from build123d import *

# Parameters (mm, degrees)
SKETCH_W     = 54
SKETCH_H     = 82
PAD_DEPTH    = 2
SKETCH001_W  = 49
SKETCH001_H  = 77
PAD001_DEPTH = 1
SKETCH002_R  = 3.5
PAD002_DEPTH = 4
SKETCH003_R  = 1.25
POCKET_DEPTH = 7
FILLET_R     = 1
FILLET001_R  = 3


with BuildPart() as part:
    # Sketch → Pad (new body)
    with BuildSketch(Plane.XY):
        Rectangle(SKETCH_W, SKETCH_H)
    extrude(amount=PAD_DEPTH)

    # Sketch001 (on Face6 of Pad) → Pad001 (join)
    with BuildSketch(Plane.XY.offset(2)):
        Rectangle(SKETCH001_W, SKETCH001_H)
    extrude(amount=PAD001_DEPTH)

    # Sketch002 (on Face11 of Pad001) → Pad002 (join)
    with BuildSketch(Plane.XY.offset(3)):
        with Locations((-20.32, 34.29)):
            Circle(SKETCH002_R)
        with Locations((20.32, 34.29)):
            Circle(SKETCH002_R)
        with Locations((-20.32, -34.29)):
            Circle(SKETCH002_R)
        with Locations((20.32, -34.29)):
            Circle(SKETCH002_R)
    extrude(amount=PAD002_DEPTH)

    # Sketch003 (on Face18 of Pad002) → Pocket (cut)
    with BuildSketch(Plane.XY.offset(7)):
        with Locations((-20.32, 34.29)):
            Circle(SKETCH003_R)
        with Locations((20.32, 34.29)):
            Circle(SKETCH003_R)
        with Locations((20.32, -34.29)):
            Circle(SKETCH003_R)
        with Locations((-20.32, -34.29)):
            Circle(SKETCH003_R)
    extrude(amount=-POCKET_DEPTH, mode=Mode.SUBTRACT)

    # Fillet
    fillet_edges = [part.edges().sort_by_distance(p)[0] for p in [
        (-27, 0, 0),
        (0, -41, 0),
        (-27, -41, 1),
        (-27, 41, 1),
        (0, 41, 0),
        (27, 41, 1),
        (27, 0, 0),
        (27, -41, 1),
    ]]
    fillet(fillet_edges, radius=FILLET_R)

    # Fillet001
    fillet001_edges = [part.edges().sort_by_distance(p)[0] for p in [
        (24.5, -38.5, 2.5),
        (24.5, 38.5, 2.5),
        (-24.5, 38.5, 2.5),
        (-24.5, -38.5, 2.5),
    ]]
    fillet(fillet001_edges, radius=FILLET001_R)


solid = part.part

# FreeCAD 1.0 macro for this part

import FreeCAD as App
import Part
import Sketcher
Q = App.Units.Quantity


def edges_at(feature, points):
    """Names of the edges that pass closest to the given points."""
    edges = feature.Shape.Edges
    near = lambda p: min(range(len(edges)), key=lambda i: edges[i].distToShape(Part.Vertex(*p))[0])
    return sorted({f"Edge{near(p) + 1}" for p in points})


def add_polygon(sketch, points):
    """Adds a closed chain of lines whose ends are joined by coincident constraints."""
    first, n = sketch.GeometryCount, len(points)
    for a, b in zip(points, points[1:] + points[:1]):
        sketch.addGeometry(Part.LineSegment(App.Vector(*a, 0), App.Vector(*b, 0)), False)
    for i in range(n):
        sketch.addConstraint(Sketcher.Constraint("Coincident", first + i, 2, first + (i + 1) % n, 1))

doc = App.newDocument("Part")
params = doc.addObject("Spreadsheet::Sheet", "Params")
for row, (alias, value) in enumerate([
    ("sketch1_width", "54 mm"),
    ("sketch1_height", "82 mm"),
    ("pad1_length", "2 mm"),
    ("sketch2_width", "49 mm"),
    ("sketch2_height", "77 mm"),
    ("pad2_length", "1 mm"),
    ("sketch3_diameter", "7 mm"),
    ("pad3_length", "4 mm"),
    ("sketch4_diameter", "2.5 mm"),
    ("pocket1_length", "7 mm"),
    ("fillet_radius", "1 mm"),
    ("fillet2_radius", "3 mm"),
], start=1):
    params.set(f"A{row}", alias)
    params.set(f"B{row}", "=" + value)
    params.setAlias(f"B{row}", alias)

body = doc.addObject("PartDesign::Body", "Body")

# Sketch on XY plane
sketch1 = body.newObject("Sketcher::SketchObject", "Sketch")
sketch1.AttachmentSupport = (doc.getObject("XY_Plane"), [""])
sketch1.MapMode = "FlatFace"
add_polygon(sketch1, [(-27, 41), (-27, -41), (27, -41), (27, 41)])  # lines 0-3
sketch1.addConstraint(Sketcher.Constraint("Vertical", 0))
sketch1.addConstraint(Sketcher.Constraint("Horizontal", 1))
sketch1.addConstraint(Sketcher.Constraint("Vertical", 2))
sketch1.addConstraint(Sketcher.Constraint("Horizontal", 3))
sketch1.addConstraint(Sketcher.Constraint("Symmetric", 0, 2, 2, 2, -1, 1))
sketch1.addConstraint(Sketcher.Constraint("DistanceX", 1, 1, 1, 2, Q("54 mm")))
sketch1.addConstraint(Sketcher.Constraint("DistanceY", 0, 2, 0, 1, Q("82 mm")))
sketch1.setExpression("Constraints[9]", "Params.sketch1_width")
sketch1.setExpression("Constraints[10]", "Params.sketch1_height")
pad1 = body.newObject("PartDesign::Pad", "Pad")
pad1.Profile = sketch1
pad1.setExpression("Length", "Params.pad1_length")

# Sketch on XY plane
sketch2 = body.newObject("Sketcher::SketchObject", "Sketch001")
sketch2.AttachmentSupport = (doc.getObject("XY_Plane"), [""])
sketch2.MapMode = "FlatFace"
sketch2.AttachmentOffset = App.Placement(App.Vector(0, 0, 2), App.Rotation())
add_polygon(sketch2, [(-24, 38), (-24, -38), (24, -38), (24, 38)])  # lines 0-3
sketch2.addConstraint(Sketcher.Constraint("Vertical", 0))
sketch2.addConstraint(Sketcher.Constraint("Horizontal", 1))
sketch2.addConstraint(Sketcher.Constraint("Vertical", 2))
sketch2.addConstraint(Sketcher.Constraint("Horizontal", 3))
sketch2.addConstraint(Sketcher.Constraint("Symmetric", 0, 2, 2, 2, -1, 1))
sketch2.addConstraint(Sketcher.Constraint("DistanceX", 1, 1, 1, 2, Q("49 mm")))
sketch2.addConstraint(Sketcher.Constraint("DistanceY", 0, 2, 0, 1, Q("77 mm")))
sketch2.setExpression("Constraints[9]", "Params.sketch2_width")
sketch2.setExpression("Constraints[10]", "Params.sketch2_height")
pad2 = body.newObject("PartDesign::Pad", "Pad001")
pad2.Profile = sketch2
pad2.setExpression("Length", "Params.pad2_length")

# Sketch on XY plane
sketch3 = body.newObject("Sketcher::SketchObject", "Sketch002")
sketch3.AttachmentSupport = (doc.getObject("XY_Plane"), [""])
sketch3.MapMode = "FlatFace"
sketch3.AttachmentOffset = App.Placement(App.Vector(0, 0, 3), App.Rotation())
sketch3.addGeometry(Part.Circle(App.Vector(-20.3, 34.3, 0), App.Vector(0, 0, 1), 3.5), False)
sketch3.addGeometry(Part.Circle(App.Vector(20.3, 34.3, 0), App.Vector(0, 0, 1), 3.5), False)
sketch3.addGeometry(Part.Circle(App.Vector(-20.3, -34.3, 0), App.Vector(0, 0, 1), 3.5), False)
sketch3.addGeometry(Part.Circle(App.Vector(20.3, -34.3, 0), App.Vector(0, 0, 1), 3.5), False)
sketch3.addConstraint(Sketcher.Constraint("Equal", 0, 1))
sketch3.addConstraint(Sketcher.Constraint("Equal", 1, 2))
sketch3.addConstraint(Sketcher.Constraint("Equal", 2, 3))
sketch3.addConstraint(Sketcher.Constraint("Symmetric", 1, 3, 2, 3, -1, 1))
sketch3.addConstraint(Sketcher.Constraint("Symmetric", 0, 3, 3, 3, -1, 1))
sketch3.addConstraint(Sketcher.Constraint("Symmetric", 0, 3, 1, 3, -2))
sketch3.addConstraint(Sketcher.Constraint("Diameter", 0, Q("7 mm")))
sketch3.addConstraint(Sketcher.Constraint("DistanceX", 0, 3, -1, 1, Q("20.32 mm")))
sketch3.addConstraint(Sketcher.Constraint("DistanceY", -1, 1, 0, 3, Q("34.29 mm")))
sketch3.setExpression("Constraints[6]", "Params.sketch3_diameter")
pad3 = body.newObject("PartDesign::Pad", "Pad002")
pad3.Profile = sketch3
pad3.setExpression("Length", "Params.pad3_length")

# Sketch on XY plane
sketch4 = body.newObject("Sketcher::SketchObject", "Sketch003")
sketch4.AttachmentSupport = (doc.getObject("XY_Plane"), [""])
sketch4.MapMode = "FlatFace"
sketch4.AttachmentOffset = App.Placement(App.Vector(0, 0, 7), App.Rotation())
sketch4.addGeometry(Part.Circle(App.Vector(-20.3, 34.3, 0), App.Vector(0, 0, 1), 1.2), False)
sketch4.addGeometry(Part.Circle(App.Vector(20.3, 34.3, 0), App.Vector(0, 0, 1), 1.2), False)
sketch4.addGeometry(Part.Circle(App.Vector(20.3, -34.3, 0), App.Vector(0, 0, 1), 1.2), False)
sketch4.addGeometry(Part.Circle(App.Vector(-20.3, -34.3, 0), App.Vector(0, 0, 1), 1.2), False)
sketch4.addConstraint(Sketcher.Constraint("Equal", 0, 1))
sketch4.addConstraint(Sketcher.Constraint("Equal", 1, 2))
sketch4.addConstraint(Sketcher.Constraint("Equal", 2, 3))
sketch4.addConstraint(Sketcher.Constraint("Symmetric", 0, 3, 2, 3, -1, 1))
sketch4.addConstraint(Sketcher.Constraint("Symmetric", 1, 3, 3, 3, -1, 1))
sketch4.addConstraint(Sketcher.Constraint("Symmetric", 0, 3, 1, 3, -2))
sketch4.addConstraint(Sketcher.Constraint("Diameter", 0, Q("2.5 mm")))
sketch4.addConstraint(Sketcher.Constraint("DistanceX", 0, 3, -1, 1, Q("20.32 mm")))
sketch4.addConstraint(Sketcher.Constraint("DistanceY", -1, 1, 0, 3, Q("34.29 mm")))
sketch4.setExpression("Constraints[6]", "Params.sketch4_diameter")
pocket1 = body.newObject("PartDesign::Pocket", "Pocket")
pocket1.Profile = sketch4
pocket1.setExpression("Length", "Params.pocket1_length")
doc.recompute()

fillet = body.newObject("PartDesign::Fillet", "Fillet")
fillet.Base = (pocket1, edges_at(pocket1, [
    (-27, 0, 0),
    (0, -41, 0),
    (-27, -41, 1),
    (-27, 41, 1),
    (0, 41, 0),
    (27, 41, 1),
    (27, 0, 0),
    (27, -41, 1),
]))
fillet.setExpression("Radius", "Params.fillet_radius")
doc.recompute()

fillet2 = body.newObject("PartDesign::Fillet", "Fillet001")
fillet2.Base = (fillet, edges_at(fillet, [
    (24.5, -38.5, 2.5),
    (24.5, 38.5, 2.5),
    (-24.5, 38.5, 2.5),
    (-24.5, -38.5, 2.5),
]))
fillet2.setExpression("Radius", "Params.fillet2_radius")

doc.recompute()
